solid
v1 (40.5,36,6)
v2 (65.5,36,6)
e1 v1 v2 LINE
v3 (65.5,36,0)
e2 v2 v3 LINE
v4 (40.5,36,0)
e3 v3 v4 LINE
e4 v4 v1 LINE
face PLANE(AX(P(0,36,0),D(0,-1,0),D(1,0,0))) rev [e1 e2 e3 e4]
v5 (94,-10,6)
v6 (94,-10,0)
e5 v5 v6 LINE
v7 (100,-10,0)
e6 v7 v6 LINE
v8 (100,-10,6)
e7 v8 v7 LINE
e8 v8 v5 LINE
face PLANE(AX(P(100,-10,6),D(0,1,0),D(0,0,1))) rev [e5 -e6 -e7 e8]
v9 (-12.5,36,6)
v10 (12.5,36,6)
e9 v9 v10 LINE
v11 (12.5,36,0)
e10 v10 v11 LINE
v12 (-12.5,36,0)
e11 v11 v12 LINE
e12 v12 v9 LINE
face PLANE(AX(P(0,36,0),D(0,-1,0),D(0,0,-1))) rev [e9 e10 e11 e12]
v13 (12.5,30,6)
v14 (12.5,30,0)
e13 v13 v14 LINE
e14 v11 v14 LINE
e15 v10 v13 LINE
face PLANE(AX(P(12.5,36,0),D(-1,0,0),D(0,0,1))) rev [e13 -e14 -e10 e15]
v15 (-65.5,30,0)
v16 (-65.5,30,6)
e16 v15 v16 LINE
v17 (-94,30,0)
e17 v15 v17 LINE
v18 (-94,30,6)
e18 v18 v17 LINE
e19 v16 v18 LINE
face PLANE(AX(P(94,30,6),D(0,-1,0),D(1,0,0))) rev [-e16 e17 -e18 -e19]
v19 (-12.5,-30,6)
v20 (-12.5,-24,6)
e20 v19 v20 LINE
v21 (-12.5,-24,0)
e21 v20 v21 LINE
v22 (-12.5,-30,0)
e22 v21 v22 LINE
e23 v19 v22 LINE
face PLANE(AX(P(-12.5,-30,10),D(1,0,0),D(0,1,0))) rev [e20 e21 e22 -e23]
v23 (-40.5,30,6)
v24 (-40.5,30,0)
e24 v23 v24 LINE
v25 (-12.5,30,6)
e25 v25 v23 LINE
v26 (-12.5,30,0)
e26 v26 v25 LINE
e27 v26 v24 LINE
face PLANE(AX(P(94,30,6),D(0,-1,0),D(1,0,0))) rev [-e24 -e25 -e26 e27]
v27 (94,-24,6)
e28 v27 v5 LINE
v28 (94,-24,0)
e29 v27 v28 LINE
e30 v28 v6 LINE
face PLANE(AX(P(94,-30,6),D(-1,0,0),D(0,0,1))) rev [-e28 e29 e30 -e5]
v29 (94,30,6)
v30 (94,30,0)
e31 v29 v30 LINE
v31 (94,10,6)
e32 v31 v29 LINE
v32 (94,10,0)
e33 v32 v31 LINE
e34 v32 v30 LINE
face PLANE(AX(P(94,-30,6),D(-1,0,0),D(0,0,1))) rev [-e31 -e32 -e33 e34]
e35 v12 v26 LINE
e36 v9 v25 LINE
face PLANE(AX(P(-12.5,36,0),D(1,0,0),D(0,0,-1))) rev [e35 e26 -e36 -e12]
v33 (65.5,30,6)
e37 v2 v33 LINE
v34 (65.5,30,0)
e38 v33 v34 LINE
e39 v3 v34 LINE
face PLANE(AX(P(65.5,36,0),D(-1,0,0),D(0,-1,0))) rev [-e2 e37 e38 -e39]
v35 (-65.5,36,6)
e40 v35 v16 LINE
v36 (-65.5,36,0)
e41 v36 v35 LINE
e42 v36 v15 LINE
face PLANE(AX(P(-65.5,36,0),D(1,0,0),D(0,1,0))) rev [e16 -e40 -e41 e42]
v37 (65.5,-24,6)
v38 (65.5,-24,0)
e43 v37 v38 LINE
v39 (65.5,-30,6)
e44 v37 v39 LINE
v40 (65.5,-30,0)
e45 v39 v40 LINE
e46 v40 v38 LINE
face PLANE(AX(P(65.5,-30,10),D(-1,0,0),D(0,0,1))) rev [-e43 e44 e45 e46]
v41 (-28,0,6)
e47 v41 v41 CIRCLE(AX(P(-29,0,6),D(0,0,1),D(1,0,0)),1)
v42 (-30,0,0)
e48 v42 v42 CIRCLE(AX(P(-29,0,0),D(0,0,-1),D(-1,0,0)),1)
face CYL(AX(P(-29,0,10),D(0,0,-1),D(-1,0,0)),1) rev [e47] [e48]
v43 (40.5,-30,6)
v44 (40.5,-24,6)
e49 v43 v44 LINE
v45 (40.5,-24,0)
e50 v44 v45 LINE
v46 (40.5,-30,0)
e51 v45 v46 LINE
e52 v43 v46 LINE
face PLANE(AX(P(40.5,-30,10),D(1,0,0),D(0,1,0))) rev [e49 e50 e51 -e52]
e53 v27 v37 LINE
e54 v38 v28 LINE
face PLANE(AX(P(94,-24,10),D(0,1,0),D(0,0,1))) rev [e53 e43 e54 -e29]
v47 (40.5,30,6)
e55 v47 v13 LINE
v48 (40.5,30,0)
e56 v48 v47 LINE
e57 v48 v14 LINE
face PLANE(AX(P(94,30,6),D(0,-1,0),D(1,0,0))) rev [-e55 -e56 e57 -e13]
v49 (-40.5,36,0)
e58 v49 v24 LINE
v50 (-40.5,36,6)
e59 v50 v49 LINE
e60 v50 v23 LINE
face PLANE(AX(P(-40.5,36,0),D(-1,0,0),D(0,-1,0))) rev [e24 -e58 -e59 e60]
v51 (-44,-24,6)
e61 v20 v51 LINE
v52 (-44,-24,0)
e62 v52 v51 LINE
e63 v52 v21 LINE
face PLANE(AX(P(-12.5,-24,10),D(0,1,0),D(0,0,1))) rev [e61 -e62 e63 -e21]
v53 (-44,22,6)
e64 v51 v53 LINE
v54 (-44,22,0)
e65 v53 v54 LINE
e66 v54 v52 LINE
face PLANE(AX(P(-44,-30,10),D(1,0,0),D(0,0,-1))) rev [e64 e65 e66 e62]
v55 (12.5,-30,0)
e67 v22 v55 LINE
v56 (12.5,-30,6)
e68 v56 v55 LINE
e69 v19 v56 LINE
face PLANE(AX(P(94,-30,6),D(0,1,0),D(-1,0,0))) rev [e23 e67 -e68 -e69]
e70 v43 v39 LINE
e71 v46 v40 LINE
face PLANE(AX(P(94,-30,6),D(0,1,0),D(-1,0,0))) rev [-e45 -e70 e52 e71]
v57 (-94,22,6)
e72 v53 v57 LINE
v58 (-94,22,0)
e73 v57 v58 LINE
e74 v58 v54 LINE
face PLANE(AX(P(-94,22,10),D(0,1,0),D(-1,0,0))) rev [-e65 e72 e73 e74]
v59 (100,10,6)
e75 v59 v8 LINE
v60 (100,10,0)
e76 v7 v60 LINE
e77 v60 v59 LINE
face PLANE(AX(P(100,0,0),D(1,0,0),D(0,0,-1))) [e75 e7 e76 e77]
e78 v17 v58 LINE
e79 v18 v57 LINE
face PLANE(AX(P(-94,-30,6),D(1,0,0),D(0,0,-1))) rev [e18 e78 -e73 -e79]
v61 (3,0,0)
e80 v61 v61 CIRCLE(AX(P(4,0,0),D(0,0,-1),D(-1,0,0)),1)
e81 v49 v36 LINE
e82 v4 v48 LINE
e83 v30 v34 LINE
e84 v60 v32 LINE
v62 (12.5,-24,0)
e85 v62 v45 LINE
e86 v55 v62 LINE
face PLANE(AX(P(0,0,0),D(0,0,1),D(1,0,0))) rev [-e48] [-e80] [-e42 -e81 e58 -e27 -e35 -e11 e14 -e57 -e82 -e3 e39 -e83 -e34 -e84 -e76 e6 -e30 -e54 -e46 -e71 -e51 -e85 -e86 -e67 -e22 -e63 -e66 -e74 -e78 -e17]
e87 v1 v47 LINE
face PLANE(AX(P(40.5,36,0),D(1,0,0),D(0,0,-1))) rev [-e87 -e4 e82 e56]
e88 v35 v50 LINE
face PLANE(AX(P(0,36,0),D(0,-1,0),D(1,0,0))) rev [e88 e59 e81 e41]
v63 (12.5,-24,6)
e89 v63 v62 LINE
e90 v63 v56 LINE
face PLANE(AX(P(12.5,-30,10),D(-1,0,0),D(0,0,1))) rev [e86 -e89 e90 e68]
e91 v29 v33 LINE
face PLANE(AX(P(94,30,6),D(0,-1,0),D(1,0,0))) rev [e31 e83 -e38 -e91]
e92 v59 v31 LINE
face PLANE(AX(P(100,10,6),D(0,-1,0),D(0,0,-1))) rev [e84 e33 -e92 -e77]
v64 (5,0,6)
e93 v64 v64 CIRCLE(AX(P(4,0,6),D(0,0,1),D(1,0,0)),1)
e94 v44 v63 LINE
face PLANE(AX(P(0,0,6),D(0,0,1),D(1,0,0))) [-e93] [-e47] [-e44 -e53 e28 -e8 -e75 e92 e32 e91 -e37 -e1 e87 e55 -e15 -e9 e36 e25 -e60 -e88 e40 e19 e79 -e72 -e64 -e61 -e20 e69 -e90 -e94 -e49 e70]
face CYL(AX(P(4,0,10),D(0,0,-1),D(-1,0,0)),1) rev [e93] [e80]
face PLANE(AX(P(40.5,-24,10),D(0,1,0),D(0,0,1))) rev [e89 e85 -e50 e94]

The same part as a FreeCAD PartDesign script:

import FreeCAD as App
import Part
import Sketcher
from FreeCAD import Vector


def add_polygon(sketch, points):
    """Adds a closed chain of lines whose ends are joined by coincident constraints."""
    first, n = sketch.GeometryCount, len(points)
    for a, b in zip(points, points[1:] + points[:1]):
        sketch.addGeometry(Part.LineSegment(App.Vector(*a, 0), App.Vector(*b, 0)), False)
    for i in range(n):
        sketch.addConstraint(Sketcher.Constraint("Coincident", first + i, 2, first + (i + 1) % n, 1))

doc = App.newDocument("Part")
body = doc.addObject("PartDesign::Body", "Body")

sketch1 = body.newObject("Sketcher::SketchObject", "Sketch")
sketch1.AttachmentSupport = (doc.getObject("XY_Plane"), [""])
sketch1.MapMode = "FlatFace"
add_polygon(sketch1, [(-94, 30), (-94, -30), (94, -30), (94, 30)])
sketch1.addConstraint([
    Sketcher.Constraint("Vertical", 0),
    Sketcher.Constraint("Horizontal", 1),
    Sketcher.Constraint("Vertical", 2),
    Sketcher.Constraint("Horizontal", 3),
    Sketcher.Constraint("Symmetric", 0, 2, 2, 2, -1, 1),
    Sketcher.Constraint("DistanceX", 1, 1, 1, 2, 188.0),
    Sketcher.Constraint("DistanceY", 0, 2, 0, 1, 60.0),
])
pad1 = body.newObject("PartDesign::Pad", "Pad")
pad1.Profile = sketch1
pad1.Length = 6

sketch2 = body.newObject("Sketcher::SketchObject", "Sketch001")
sketch2.AttachmentSupport = (doc.getObject("XY_Plane"), [""])
sketch2.MapMode = "FlatFace"
add_polygon(sketch2, [(-44, 22), (-44, -30), (-94, -30), (-94, 22)])
sketch2.addConstraint([
    Sketcher.Constraint("Vertical", 0),
    Sketcher.Constraint("Horizontal", 1),
    Sketcher.Constraint("Vertical", 2),
    Sketcher.Constraint("Horizontal", 3),
    Sketcher.Constraint("DistanceX", 1, 2, 1, 1, 50.0),
    Sketcher.Constraint("DistanceY", 0, 2, 0, 1, 52.0),
    Sketcher.Constraint("DistanceX", 0, 2, -1, 1, 44.0),
    Sketcher.Constraint("DistanceY", 0, 2, -1, 1, 30.0),
])
pocket1 = body.newObject("PartDesign::Pocket", "Pocket")
pocket1.Profile = sketch2
pocket1.Length = 10
pocket1.Reversed = True

sketch3 = body.newObject("Sketcher::SketchObject", "Sketch002")
sketch3.AttachmentSupport = (doc.getObject("YZ_Plane"), [""])
sketch3.MapMode = "FlatFace"
sketch3.AttachmentOffset = App.Placement(Vector(0, 0, 94), App.Rotation())
add_polygon(sketch3, [(10, 6), (-10, 6), (-10, 0), (10, 0)])
sketch3.addConstraint([
    Sketcher.Constraint("Horizontal", 0),
    Sketcher.Constraint("Vertical", 1),
    Sketcher.Constraint("Horizontal", 2),
    Sketcher.Constraint("Vertical", 3),
    Sketcher.Constraint("Symmetric", 1, 2, 2, 2, -1, 1),
    Sketcher.Constraint("DistanceX", 0, 2, 0, 1, 20.0),
    Sketcher.Constraint("DistanceY", 1, 2, 1, 1, 6.0),
])
pad2 = body.newObject("PartDesign::Pad", "Pad001")
pad2.Profile = sketch3
pad2.Length = 6

sketch4 = body.newObject("Sketcher::SketchObject", "Sketch003")
sketch4.AttachmentSupport = (doc.getObject("XZ_Plane"), [""])
sketch4.MapMode = "FlatFace"
sketch4.AttachmentOffset = App.Placement(Vector(0, 0, -30), App.Rotation())
add_polygon(sketch4, [(40.5, 0), (40.5, 6), (65.5, 6), (65.5, 0)])
add_polygon(sketch4, [(-12.5, 0), (-12.5, 6), (12.5, 6), (12.5, 0)])
add_polygon(sketch4, [(-65.5, 0), (-65.5, 6), (-40.5, 6), (-40.5, 0)])
sketch4.addConstraint([
    Sketcher.Constraint("Vertical", 0),
    Sketcher.Constraint("Horizontal", 1),
    Sketcher.Constraint("Vertical", 2),
    Sketcher.Constraint("Horizontal", 3),
    Sketcher.Constraint("Vertical", 4),
    Sketcher.Constraint("Horizontal", 5),
    Sketcher.Constraint("Vertical", 6),
    Sketcher.Constraint("Horizontal", 7),
    Sketcher.Constraint("Vertical", 8),
    Sketcher.Constraint("Horizontal", 9),
    Sketcher.Constraint("Vertical", 10),
    Sketcher.Constraint("Horizontal", 11),
    Sketcher.Constraint("Symmetric", 6, 2, 7, 2, -1, 1),
    Sketcher.Constraint("Symmetric", 3, 2, 10, 2, -1, 1),
    Sketcher.Constraint("Symmetric", 1, 2, 8, 2, -2),
    Sketcher.Constraint("PointOnObject", 2, 2, -1),
    Sketcher.Constraint("Horizontal", 1, 2, 4, 2),
    Sketcher.Constraint("Equal", 3, 5),
    Sketcher.Constraint("DistanceX", 1, 1, 1, 2, 25.0),
    Sketcher.Constraint("DistanceY", 0, 1, 0, 2, 6.0),
    Sketcher.Constraint("DistanceX", 4, 2, 0, 2, 53.0),
])
pad3 = body.newObject("PartDesign::Pad", "Pad002")
pad3.Profile = sketch4
pad3.Length = 6
pad3.Reversed = True

sketch5 = body.newObject("Sketcher::SketchObject", "Sketch004")
sketch5.AttachmentSupport = (doc.getObject("XY_Plane"), [""])
sketch5.MapMode = "FlatFace"
sketch5.addGeometry([
    Part.Circle(Vector(-29, 0, 0), Vector(0, 0, 1), 1),
    Part.Circle(Vector(4, 0, 0), Vector(0, 0, 1), 1),
], False)
sketch5.addConstraint([
    Sketcher.Constraint("Equal", 0, 1),
    Sketcher.Constraint("PointOnObject", 0, 3, -1),
    Sketcher.Constraint("PointOnObject", 1, 3, -1),
    Sketcher.Constraint("Diameter", 0, 2.0),
    Sketcher.Constraint("DistanceX", 0, 3, -1, 1, 29.0),
    Sketcher.Constraint("DistanceX", -1, 1, 1, 3, 4.0),
])
pocket2 = body.newObject("PartDesign::Pocket", "Pocket001")
pocket2.Profile = sketch5
pocket2.Length = 10
pocket2.Reversed = True

sketch6 = body.newObject("Sketcher::SketchObject", "Sketch005")
sketch6.AttachmentSupport = (doc.getObject("XY_Plane"), [""])
sketch6.MapMode = "FlatFace"
add_polygon(sketch6, [(94, -24), (94, -30), (65.5, -30), (65.5, -24)])
add_polygon(sketch6, [(40.5, -24), (40.5, -30), (12.5, -30), (12.5, -24)])
add_polygon(sketch6, [(-12.5, -24), (-12.5, -30), (-44, -30), (-44, -24)])
sketch6.addConstraint([
    Sketcher.Constraint("Vertical", 0),
    Sketcher.Constraint("Horizontal", 1),
    Sketcher.Constraint("Vertical", 2),
    Sketcher.Constraint("Horizontal", 3),
    Sketcher.Constraint("Vertical", 4),
    Sketcher.Constraint("Horizontal", 5),
    Sketcher.Constraint("Vertical", 6),
    Sketcher.Constraint("Horizontal", 7),
    Sketcher.Constraint("Vertical", 8),
    Sketcher.Constraint("Horizontal", 9),
    Sketcher.Constraint("Vertical", 10),
    Sketcher.Constraint("Horizontal", 11),
    Sketcher.Constraint("Symmetric", 5, 2, 8, 2, -2),
    Sketcher.Constraint("Horizontal", 1, 2, 4, 2),
    Sketcher.Constraint("Horizontal", 3, 2, 6, 2),
    Sketcher.Constraint("Horizontal", 7, 2, 10, 2),
    Sketcher.Constraint("DistanceX", 5, 2, 5, 1, 28.0),
    Sketcher.Constraint("DistanceY", 0, 2, 0, 1, 6.0),
    Sketcher.Constraint("DistanceX", 1, 2, 1, 1, 28.5),
    Sketcher.Constraint("DistanceX", 9, 2, 9, 1, 31.5),
    Sketcher.Constraint("DistanceX", -1, 1, 0, 2, 94.0),
    Sketcher.Constraint("DistanceY", 0, 2, -1, 1, 30.0),
    Sketcher.Constraint("DistanceX", 9, 2, -1, 1, 44.0),
])
pocket3 = body.newObject("PartDesign::Pocket", "Pocket002")
pocket3.Profile = sketch6
pocket3.Length = 10
pocket3.Reversed = True

doc.recompute()
